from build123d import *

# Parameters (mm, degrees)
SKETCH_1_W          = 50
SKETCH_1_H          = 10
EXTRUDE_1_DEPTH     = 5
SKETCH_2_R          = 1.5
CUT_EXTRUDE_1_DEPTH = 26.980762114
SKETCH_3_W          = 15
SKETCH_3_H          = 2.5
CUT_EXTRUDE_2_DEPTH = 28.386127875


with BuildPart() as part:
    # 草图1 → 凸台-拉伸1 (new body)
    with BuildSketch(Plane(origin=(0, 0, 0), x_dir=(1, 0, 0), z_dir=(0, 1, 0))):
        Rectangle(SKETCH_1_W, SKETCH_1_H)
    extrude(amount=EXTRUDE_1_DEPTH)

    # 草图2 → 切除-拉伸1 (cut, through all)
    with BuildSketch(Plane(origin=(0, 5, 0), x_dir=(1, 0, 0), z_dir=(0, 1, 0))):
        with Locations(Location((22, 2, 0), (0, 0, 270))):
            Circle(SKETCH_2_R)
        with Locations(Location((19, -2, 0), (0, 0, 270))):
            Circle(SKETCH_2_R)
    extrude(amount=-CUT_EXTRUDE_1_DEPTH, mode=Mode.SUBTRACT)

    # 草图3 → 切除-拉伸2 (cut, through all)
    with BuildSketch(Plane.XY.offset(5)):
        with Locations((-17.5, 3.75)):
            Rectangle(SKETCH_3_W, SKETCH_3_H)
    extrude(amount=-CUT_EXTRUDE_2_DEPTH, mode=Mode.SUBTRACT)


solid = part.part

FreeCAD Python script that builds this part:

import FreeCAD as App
import Part
import Sketcher
from FreeCAD import Vector
Q = App.Units.Quantity

doc = App.newDocument("Part")
params = doc.addObject("Spreadsheet::Sheet", "Params")
for row, (alias, value) in enumerate([
    ("sketch1_width", "50 mm"),
    ("sketch1_height", "10 mm"),
    ("pad1_length", "5 mm"),
    ("sketch2_diameter", "3 mm"),
    ("sketch3_width", "15 mm"),
    ("sketch3_height", "2.5 mm"),
], start=1):
    params.set(f"A{row}", alias)
    params.set(f"B{row}", "=" + value)
    params.setAlias(f"B{row}", alias)

body = doc.addObject("PartDesign::Body", "Body")

# Sketch on XZ plane
sketch1 = doc.addObject("Sketcher::SketchObject", "Sketch")
body.addObject(sketch1)
sketch1.AttachmentSupport = (doc.XZ_Plane, [""])
sketch1.MapMode = "FlatFace"
sketch1.addGeometry([
    Part.LineSegment(Vector(-25, -5, 0), Vector(-25, 5, 0)),
    Part.LineSegment(Vector(-25, 5, 0), Vector(25, 5, 0)),
    Part.LineSegment(Vector(25, 5, 0), Vector(25, -5, 0)),
    Part.LineSegment(Vector(25, -5, 0), Vector(-25, -5, 0)),
], False)
sketch1.addConstraint([
    Sketcher.Constraint("Coincident", 0, 2, 1, 1),
    Sketcher.Constraint("Coincident", 1, 2, 2, 1),
    Sketcher.Constraint("Coincident", 2, 2, 3, 1),
    Sketcher.Constraint("Coincident", 3, 2, 0, 1),
    Sketcher.Constraint("Vertical", 0),
    Sketcher.Constraint("Horizontal", 1),
    Sketcher.Constraint("Vertical", 2),
    Sketcher.Constraint("Horizontal", 3),
    Sketcher.Constraint("Symmetric", 0, 2, 2, 2, -1, 1),
    Sketcher.Constraint("DistanceX", 1, 1, 1, 2, Q("50 mm")),
    Sketcher.Constraint("DistanceY", 0, 1, 0, 2, Q("10 mm")),
])
sketch1.setExpression("Constraints[9]", "Params.sketch1_width")
sketch1.setExpression("Constraints[10]", "Params.sketch1_height")
pad1 = doc.addObject("PartDesign::Pad", "Pad")
body.addObject(pad1)
pad1.Profile = sketch1
pad1.setExpression("Length", "Params.pad1_length")
pad1.Reversed = True

# Sketch on XZ plane
sketch2 = doc.addObject("Sketcher::SketchObject", "Sketch001")
body.addObject(sketch2)
sketch2.AttachmentSupport = (doc.XZ_Plane, [""])
sketch2.MapMode = "FlatFace"
sketch2.AttachmentOffset = App.Placement(Vector(0, 0, -5), App.Rotation())
sketch2.addGeometry([
    Part.Circle(Vector(22, -2, 0), Vector(0, 0, 1), 1.5),
    Part.Circle(Vector(19, 2, 0), Vector(0, 0, 1), 1.5),
], False)
sketch2.addConstraint([
    Sketcher.Constraint("Equal", 0, 1),
    Sketcher.Constraint("Diameter", 0, Q("3 mm")),
    Sketcher.Constraint("DistanceX", -1, 1, 0, 3, Q("22 mm")),
    Sketcher.Constraint("DistanceY", 0, 3, -1, 1, Q("2 mm")),
    Sketcher.Constraint("DistanceX", -1, 1, 1, 3, Q("19 mm")),
    Sketcher.Constraint("DistanceY", -1, 1, 1, 3, Q("2 mm")),
])
sketch2.setExpression("Constraints[1]", "Params.sketch2_diameter")
pocket1 = doc.addObject("PartDesign::Pocket", "Pocket")
body.addObject(pocket1)
pocket1.Profile = sketch2
pocket1.Type = "ThroughAll"
pocket1.Reversed = True

# Sketch on XY plane
sketch3 = doc.addObject("Sketcher::SketchObject", "Sketch002")
body.addObject(sketch3)
sketch3.AttachmentSupport = (doc.XY_Plane, [""])
sketch3.MapMode = "FlatFace"
sketch3.AttachmentOffset = App.Placement(Vector(0, 0, 5), App.Rotation())
sketch3.addGeometry([
    Part.LineSegment(Vector(-25, 5, 0), Vector(-25, 2.5, 0)),
    Part.LineSegment(Vector(-25, 2.5, 0), Vector(-10, 2.5, 0)),
    Part.LineSegment(Vector(-10, 2.5, 0), Vector(-10, 5, 0)),
    Part.LineSegment(Vector(-10, 5, 0), Vector(-25, 5, 0)),
], False)
sketch3.addConstraint([
    Sketcher.Constraint("Coincident", 0, 2, 1, 1),
    Sketcher.Constraint("Coincident", 1, 2, 2, 1),
    Sketcher.Constraint("Coincident", 2, 2, 3, 1),
    Sketcher.Constraint("Coincident", 3, 2, 0, 1),
    Sketcher.Constraint("Vertical", 0),
    Sketcher.Constraint("Horizontal", 1),
    Sketcher.Constraint("Vertical", 2),
    Sketcher.Constraint("Horizontal", 3),
    Sketcher.Constraint("DistanceX", 1, 1, 1, 2, Q("15 mm")),
    Sketcher.Constraint("DistanceY", 0, 2, 0, 1, Q("2.5 mm")),
    Sketcher.Constraint("DistanceX", 0, 2, -1, 1, Q("25 mm")),
    Sketcher.Constraint("DistanceY", -1, 1, 2, 2, Q("5 mm")),
])
sketch3.setExpression("Constraints[8]", "Params.sketch3_width")
sketch3.setExpression("Constraints[9]", "Params.sketch3_height")
pocket2 = doc.addObject("PartDesign::Pocket", "Pocket001")
body.addObject(pocket2)
pocket2.Profile = sketch3
pocket2.Type = "ThroughAll"

doc.recompute()
